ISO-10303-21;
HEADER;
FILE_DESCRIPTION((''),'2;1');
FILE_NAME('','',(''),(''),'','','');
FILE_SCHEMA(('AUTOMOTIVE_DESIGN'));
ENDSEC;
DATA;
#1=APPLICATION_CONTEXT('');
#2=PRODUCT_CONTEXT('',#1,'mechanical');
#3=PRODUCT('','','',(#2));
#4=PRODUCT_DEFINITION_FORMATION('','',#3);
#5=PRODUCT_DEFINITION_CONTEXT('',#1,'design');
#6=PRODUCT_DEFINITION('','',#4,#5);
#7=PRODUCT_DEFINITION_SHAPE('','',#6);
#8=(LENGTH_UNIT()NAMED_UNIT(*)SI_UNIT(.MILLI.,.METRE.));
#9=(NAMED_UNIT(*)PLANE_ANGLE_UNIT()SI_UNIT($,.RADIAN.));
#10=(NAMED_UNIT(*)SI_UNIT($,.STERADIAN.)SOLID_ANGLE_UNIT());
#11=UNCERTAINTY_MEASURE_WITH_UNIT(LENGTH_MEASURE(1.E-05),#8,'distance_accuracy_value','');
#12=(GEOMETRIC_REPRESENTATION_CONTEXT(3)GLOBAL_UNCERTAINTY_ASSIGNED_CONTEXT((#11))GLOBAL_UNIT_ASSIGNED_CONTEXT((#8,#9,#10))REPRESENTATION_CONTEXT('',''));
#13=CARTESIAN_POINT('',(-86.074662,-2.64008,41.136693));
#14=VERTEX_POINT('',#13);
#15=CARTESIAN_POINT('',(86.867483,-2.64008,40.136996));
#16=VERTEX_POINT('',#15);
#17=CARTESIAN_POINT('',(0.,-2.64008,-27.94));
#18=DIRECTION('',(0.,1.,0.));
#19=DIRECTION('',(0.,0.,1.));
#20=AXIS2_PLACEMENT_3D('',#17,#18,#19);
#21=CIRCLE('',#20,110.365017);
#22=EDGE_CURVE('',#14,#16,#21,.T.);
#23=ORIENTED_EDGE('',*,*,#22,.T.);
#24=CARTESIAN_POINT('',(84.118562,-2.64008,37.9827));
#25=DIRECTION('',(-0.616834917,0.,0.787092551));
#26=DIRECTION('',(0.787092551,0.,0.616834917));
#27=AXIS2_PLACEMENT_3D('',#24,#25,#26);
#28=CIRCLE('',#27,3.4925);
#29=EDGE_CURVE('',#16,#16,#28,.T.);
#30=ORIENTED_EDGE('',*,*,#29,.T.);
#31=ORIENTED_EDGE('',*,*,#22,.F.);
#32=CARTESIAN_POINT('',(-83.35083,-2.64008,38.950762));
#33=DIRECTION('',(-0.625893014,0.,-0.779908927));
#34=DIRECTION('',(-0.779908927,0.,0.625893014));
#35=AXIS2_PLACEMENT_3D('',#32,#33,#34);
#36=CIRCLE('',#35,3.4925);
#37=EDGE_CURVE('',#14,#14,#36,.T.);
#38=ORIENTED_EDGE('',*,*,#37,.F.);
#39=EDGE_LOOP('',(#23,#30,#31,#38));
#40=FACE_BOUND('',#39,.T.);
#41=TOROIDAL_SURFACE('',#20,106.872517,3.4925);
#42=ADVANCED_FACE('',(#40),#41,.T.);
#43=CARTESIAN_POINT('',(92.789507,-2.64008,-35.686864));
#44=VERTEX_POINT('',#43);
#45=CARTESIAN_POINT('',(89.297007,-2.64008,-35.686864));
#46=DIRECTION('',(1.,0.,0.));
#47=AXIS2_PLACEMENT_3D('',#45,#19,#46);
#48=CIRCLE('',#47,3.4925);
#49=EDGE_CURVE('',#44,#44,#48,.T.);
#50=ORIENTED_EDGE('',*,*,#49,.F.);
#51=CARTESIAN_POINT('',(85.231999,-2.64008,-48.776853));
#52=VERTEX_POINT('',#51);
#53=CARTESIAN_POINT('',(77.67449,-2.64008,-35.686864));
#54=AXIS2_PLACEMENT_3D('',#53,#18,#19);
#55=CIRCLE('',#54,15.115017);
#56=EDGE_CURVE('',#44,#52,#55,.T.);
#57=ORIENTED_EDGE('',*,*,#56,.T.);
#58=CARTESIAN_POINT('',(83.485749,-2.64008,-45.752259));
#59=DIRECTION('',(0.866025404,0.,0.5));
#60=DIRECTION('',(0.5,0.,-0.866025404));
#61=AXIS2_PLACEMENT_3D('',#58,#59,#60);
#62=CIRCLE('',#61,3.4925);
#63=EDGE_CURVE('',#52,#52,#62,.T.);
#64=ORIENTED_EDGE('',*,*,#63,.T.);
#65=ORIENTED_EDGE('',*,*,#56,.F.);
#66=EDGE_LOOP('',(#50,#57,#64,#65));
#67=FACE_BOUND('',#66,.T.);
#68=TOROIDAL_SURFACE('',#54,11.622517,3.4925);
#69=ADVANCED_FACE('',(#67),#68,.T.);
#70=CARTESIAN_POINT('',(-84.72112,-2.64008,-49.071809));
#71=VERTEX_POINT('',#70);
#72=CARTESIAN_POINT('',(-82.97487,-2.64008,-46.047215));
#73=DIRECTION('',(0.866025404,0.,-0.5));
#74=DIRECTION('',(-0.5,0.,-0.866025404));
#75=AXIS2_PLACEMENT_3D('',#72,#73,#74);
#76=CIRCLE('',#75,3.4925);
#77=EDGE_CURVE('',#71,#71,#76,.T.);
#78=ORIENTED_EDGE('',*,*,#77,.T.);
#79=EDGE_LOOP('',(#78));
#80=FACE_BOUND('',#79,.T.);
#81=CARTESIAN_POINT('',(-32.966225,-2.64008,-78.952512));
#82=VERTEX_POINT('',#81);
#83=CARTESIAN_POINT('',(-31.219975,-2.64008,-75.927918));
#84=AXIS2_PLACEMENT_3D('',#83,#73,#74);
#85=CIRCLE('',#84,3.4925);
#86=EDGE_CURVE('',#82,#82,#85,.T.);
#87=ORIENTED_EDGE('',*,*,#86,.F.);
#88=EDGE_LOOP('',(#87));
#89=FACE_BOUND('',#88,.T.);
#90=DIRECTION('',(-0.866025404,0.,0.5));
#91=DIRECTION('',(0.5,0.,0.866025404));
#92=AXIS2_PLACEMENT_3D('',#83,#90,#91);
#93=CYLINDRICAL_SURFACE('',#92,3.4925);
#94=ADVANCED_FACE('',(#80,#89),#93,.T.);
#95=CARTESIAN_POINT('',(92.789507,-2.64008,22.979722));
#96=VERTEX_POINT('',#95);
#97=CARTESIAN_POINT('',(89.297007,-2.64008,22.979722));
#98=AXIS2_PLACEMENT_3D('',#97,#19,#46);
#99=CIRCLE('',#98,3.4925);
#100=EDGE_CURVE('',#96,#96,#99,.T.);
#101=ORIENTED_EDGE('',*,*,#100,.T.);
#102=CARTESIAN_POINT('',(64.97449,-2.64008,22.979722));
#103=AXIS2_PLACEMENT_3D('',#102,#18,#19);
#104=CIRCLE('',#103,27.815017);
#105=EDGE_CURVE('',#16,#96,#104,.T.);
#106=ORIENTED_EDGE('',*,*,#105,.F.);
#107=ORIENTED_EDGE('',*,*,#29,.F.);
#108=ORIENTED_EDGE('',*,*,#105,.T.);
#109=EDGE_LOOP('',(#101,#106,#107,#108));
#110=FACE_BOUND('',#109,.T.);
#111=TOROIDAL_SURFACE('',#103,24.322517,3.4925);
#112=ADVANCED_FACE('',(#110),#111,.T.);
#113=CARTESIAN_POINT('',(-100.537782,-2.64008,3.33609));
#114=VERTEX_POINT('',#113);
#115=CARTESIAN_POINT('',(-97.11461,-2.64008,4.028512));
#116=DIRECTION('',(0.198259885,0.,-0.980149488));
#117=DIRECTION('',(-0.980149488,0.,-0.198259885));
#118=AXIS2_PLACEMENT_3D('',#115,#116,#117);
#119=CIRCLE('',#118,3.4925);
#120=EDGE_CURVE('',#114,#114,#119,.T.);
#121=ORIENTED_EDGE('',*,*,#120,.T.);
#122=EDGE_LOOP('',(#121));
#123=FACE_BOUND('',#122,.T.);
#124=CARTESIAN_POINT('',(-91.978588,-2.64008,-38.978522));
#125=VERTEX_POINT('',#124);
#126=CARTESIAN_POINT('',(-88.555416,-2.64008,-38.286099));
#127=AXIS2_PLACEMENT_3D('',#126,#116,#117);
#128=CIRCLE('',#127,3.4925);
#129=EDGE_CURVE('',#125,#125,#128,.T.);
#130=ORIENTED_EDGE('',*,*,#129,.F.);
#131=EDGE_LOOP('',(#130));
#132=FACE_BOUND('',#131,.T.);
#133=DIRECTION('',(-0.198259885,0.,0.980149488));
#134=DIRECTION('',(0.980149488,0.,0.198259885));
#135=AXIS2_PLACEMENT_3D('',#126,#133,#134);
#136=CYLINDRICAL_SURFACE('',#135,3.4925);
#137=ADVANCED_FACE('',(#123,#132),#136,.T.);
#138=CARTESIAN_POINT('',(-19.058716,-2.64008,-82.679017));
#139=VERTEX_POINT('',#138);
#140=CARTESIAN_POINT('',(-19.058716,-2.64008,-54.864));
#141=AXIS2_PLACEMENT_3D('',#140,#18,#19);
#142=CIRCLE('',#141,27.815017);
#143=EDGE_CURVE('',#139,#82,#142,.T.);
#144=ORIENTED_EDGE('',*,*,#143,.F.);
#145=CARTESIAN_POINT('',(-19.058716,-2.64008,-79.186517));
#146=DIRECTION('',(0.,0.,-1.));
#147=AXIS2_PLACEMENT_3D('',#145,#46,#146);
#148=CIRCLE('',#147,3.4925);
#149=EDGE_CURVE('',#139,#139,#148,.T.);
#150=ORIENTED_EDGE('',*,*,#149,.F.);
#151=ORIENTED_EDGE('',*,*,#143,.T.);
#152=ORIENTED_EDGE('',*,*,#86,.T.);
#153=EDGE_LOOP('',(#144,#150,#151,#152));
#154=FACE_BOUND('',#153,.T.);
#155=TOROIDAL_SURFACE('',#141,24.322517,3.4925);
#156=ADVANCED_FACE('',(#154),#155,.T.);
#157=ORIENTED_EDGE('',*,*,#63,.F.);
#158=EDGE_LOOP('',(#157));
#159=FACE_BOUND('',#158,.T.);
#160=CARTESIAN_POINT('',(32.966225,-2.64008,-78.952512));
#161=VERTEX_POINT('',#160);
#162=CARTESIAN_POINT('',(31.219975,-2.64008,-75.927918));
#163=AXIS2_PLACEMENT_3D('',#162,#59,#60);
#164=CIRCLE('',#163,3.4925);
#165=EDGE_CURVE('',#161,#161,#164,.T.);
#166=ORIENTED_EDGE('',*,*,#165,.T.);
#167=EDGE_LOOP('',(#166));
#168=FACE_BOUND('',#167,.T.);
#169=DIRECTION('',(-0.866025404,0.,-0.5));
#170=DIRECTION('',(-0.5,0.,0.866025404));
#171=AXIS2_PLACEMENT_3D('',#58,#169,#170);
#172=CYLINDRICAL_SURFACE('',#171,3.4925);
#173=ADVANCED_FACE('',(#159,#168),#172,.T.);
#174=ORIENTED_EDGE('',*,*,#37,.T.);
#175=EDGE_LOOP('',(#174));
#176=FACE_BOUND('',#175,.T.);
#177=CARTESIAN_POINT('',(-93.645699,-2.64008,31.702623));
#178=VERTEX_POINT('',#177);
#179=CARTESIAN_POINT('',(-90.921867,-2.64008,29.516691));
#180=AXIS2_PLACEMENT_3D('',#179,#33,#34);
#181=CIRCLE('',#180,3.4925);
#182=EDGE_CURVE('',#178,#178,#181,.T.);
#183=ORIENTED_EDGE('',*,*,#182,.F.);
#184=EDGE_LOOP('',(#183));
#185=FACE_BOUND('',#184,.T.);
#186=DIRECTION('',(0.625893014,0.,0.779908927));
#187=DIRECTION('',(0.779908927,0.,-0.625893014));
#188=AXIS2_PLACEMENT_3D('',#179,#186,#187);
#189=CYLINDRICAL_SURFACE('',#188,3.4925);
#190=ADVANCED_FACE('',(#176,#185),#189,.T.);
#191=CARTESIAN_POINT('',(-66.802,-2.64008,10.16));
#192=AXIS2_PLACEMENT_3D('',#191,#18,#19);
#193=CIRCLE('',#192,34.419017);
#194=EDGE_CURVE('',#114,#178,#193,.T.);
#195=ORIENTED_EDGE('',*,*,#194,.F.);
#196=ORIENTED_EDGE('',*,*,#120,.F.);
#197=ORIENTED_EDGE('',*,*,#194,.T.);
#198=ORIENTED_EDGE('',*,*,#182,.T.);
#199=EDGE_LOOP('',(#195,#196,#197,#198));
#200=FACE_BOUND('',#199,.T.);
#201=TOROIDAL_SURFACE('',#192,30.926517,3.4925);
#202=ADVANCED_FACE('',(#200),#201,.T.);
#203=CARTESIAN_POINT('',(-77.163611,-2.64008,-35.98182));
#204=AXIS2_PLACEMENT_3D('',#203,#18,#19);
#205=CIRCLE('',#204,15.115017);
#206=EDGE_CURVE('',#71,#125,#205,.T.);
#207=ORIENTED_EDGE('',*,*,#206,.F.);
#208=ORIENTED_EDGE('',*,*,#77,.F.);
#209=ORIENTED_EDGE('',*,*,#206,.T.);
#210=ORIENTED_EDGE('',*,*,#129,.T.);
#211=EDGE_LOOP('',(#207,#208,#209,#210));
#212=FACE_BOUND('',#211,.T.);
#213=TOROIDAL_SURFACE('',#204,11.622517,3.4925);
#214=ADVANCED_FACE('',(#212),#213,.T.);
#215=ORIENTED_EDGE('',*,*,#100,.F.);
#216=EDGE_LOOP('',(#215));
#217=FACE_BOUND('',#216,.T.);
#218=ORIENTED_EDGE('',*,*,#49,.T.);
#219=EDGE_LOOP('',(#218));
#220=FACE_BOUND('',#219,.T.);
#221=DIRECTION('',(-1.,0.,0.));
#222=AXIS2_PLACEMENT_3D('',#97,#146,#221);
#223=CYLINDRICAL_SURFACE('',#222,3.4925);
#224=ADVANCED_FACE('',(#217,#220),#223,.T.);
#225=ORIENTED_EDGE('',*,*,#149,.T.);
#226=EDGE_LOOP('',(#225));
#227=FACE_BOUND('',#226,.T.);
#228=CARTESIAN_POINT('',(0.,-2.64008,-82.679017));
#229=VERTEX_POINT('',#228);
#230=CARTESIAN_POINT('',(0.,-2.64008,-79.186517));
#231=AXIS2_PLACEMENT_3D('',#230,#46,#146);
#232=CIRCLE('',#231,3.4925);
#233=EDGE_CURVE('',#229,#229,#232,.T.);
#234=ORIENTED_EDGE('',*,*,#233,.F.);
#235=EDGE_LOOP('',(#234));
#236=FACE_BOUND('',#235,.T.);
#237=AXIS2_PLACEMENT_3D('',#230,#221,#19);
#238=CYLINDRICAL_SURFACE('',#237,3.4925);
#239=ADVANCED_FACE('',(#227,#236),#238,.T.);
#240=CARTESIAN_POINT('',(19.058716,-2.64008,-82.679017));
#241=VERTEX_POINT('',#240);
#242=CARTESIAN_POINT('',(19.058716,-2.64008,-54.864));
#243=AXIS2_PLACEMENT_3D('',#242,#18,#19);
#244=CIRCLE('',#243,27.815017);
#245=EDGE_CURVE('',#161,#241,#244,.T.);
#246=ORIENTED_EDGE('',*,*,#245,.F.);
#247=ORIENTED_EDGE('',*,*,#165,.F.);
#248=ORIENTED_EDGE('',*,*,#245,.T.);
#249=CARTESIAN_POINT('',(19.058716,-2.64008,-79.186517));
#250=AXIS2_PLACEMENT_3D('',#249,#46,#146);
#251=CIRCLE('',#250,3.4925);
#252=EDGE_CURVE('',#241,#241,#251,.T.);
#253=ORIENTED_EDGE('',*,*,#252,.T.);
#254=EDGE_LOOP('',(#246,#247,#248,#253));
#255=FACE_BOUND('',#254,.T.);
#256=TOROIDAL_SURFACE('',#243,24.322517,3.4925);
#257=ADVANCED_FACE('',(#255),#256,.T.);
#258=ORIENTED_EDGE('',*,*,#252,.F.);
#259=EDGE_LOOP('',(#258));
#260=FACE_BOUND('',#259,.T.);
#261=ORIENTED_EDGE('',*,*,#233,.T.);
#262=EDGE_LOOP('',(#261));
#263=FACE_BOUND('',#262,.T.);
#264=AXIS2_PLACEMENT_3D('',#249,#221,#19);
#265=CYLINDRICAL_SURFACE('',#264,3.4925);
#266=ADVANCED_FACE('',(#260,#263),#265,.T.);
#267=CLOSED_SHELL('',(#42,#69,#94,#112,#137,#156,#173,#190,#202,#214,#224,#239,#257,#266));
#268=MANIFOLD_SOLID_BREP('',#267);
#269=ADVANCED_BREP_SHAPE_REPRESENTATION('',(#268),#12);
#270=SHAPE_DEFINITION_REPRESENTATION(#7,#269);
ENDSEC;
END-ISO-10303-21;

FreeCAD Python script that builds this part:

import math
import FreeCAD as App
import Part
import Sketcher
Q = App.Units.Quantity

doc = App.newDocument("Part")
params = doc.addObject("Spreadsheet::Sheet", "Params")
for row, (alias, value) in enumerate([
    ("sketch1_diameter", "0.275 in"),
], start=1):
    params.set(f"A{row}", alias)
    params.set(f"B{row}", "=" + value)
    params.setAlias(f"B{row}", alias)

body = doc.addObject("PartDesign::Body", "Body")

# Sketch on YZ plane
sketch1 = body.newObject("Sketcher::SketchObject", "Sketch")
sketch1.AttachmentSupport = (doc.getObject("YZ_Plane"), [""])
sketch1.MapMode = "FlatFace"
sketch1.addGeometry(Part.Circle(App.Vector(-2.6, -79.2, 0), App.Vector(0, 0, 1), 3.5), False)
sketch1.addConstraint([
    Sketcher.Constraint("Diameter", 0, Q("0.275 in")),
    Sketcher.Constraint("DistanceX", 0, 3, -1, 1, 2.64008),
    Sketcher.Constraint("DistanceY", 0, 3, -1, 1, 79.186517),
])
sketch1.setExpression("Constraints[0]", "Params.sketch1_diameter")

# Sketch on XZ plane
sketch2 = body.newObject("Sketcher::SketchObject", "Sketch001")
sketch2.AttachmentSupport = (doc.getObject("XZ_Plane"), [""])
sketch2.MapMode = "FlatFace"
sketch2.AttachmentOffset = App.Placement(App.Vector(0, 0, 2.64008), App.Rotation())
sketch2.addGeometry([
    Part.LineSegment(App.Vector(-83, 39, 0), App.Vector(-91, 30, 0)),  # 0
    Part.ArcOfCircle(Part.Circle(App.Vector(-67, 10, 0), App.Vector(0, 0, 1), 31), math.radians(141), math.radians(191)),  # 1
    Part.LineSegment(App.Vector(-97, 4, 0), App.Vector(-89, -38, 0)),  # 2
    Part.ArcOfCircle(Part.Circle(App.Vector(-77, -36, 0), App.Vector(0, 0, 1), 12), math.radians(-169), math.radians(-120)),  # 3
    Part.LineSegment(App.Vector(-83, -46, 0), App.Vector(-31, -76, 0)),  # 4
    Part.ArcOfCircle(Part.Circle(App.Vector(-19, -55, 0), App.Vector(0, 0, 1), 24), math.radians(-120), math.radians(-90)),  # 5
    Part.LineSegment(App.Vector(-19, -79, 0), App.Vector(19, -79, 0)),  # 6
    Part.ArcOfCircle(Part.Circle(App.Vector(19, -55, 0), App.Vector(0, 0, 1), 24), math.radians(-90), math.radians(-60)),  # 7
    Part.LineSegment(App.Vector(31, -76, 0), App.Vector(83, -46, 0)),  # 8
    Part.ArcOfCircle(Part.Circle(App.Vector(78, -36, 0), App.Vector(0, 0, 1), 12), math.radians(-60), math.radians(0)),  # 9
    Part.LineSegment(App.Vector(89, -36, 0), App.Vector(89, 23, 0)),  # 10
    Part.ArcOfCircle(Part.Circle(App.Vector(65, 23, 0), App.Vector(0, 0, 1), 24), math.radians(0), math.radians(38)),  # 11
    Part.ArcOfCircle(Part.Circle(App.Vector(0, -28, 0), App.Vector(0, 0, 1), 107), math.radians(38), math.radians(141)),  # 12
], False)
sketch2.addConstraint([
    Sketcher.Constraint("Tangent", 0, 2, 1, 1),
    Sketcher.Constraint("Tangent", 1, 2, 2, 1),
    Sketcher.Constraint("Tangent", 2, 2, 3, 1),
    Sketcher.Constraint("Tangent", 3, 2, 4, 1),
    Sketcher.Constraint("Tangent", 4, 2, 5, 1),
    Sketcher.Constraint("Tangent", 5, 2, 6, 1),
    Sketcher.Constraint("Tangent", 6, 2, 7, 1),
    Sketcher.Constraint("Tangent", 7, 2, 8, 1),
    Sketcher.Constraint("Tangent", 8, 2, 9, 1),
    Sketcher.Constraint("Tangent", 9, 2, 10, 1),
    Sketcher.Constraint("Tangent", 10, 2, 11, 1),
    Sketcher.Constraint("Tangent", 11, 2, 12, 1),
    Sketcher.Constraint("Tangent", 12, 2, 0, 1),
    Sketcher.Constraint("Horizontal", 6),
    Sketcher.Constraint("Vertical", 10),
    Sketcher.Constraint("Equal", 5, 7),
    Sketcher.Constraint("Equal", 3, 9),
    Sketcher.Constraint("Equal", 7, 11),
    Sketcher.Constraint("Symmetric", 4, 2, 7, 2, -2),
    Sketcher.Constraint("PointOnObject", 12, 3, -2),
    Sketcher.Constraint("Angle", 4, Q("-30 deg")),
    Sketcher.Constraint("DistanceY", -1, 1, 1, 3, Q("0.4 in")),
    Sketcher.Constraint("DistanceY", 12, 3, -1, 1, Q("1.1 in")),
    Sketcher.Constraint("DistanceX", 11, 3, 9, 3, Q("0.5 in")),
    Sketcher.Constraint("DistanceX", 1, 3, -1, 1, Q("2.63 in")),
    Sketcher.Constraint("DistanceY", 5, 3, -1, 1, Q("2.16 in")),
    Sketcher.Constraint("Radius", 1, 30.926517),
    Sketcher.Constraint("Radius", 3, 11.622517),
    Sketcher.Constraint("Radius", 12, 106.872517),
    Sketcher.Constraint("DistanceY", 2, 2, -1, 1, 38.286099),
    Sketcher.Constraint("DistanceY", -1, 1, 11, 2, 37.9827),
    Sketcher.Constraint("DistanceX", 3, 3, 9, 3, 154.838102),
])
doc.recompute()

additivepipe = body.newObject("PartDesign::AdditivePipe", "AdditivePipe")
additivepipe.Profile = sketch1
additivepipe.Spine = (sketch2, ["Edge1", "Edge2", "Edge3", "Edge4", "Edge5", "Edge6", "Edge7", "Edge8", "Edge9", "Edge10", "Edge11", "Edge12", "Edge13"])

doc.recompute()
